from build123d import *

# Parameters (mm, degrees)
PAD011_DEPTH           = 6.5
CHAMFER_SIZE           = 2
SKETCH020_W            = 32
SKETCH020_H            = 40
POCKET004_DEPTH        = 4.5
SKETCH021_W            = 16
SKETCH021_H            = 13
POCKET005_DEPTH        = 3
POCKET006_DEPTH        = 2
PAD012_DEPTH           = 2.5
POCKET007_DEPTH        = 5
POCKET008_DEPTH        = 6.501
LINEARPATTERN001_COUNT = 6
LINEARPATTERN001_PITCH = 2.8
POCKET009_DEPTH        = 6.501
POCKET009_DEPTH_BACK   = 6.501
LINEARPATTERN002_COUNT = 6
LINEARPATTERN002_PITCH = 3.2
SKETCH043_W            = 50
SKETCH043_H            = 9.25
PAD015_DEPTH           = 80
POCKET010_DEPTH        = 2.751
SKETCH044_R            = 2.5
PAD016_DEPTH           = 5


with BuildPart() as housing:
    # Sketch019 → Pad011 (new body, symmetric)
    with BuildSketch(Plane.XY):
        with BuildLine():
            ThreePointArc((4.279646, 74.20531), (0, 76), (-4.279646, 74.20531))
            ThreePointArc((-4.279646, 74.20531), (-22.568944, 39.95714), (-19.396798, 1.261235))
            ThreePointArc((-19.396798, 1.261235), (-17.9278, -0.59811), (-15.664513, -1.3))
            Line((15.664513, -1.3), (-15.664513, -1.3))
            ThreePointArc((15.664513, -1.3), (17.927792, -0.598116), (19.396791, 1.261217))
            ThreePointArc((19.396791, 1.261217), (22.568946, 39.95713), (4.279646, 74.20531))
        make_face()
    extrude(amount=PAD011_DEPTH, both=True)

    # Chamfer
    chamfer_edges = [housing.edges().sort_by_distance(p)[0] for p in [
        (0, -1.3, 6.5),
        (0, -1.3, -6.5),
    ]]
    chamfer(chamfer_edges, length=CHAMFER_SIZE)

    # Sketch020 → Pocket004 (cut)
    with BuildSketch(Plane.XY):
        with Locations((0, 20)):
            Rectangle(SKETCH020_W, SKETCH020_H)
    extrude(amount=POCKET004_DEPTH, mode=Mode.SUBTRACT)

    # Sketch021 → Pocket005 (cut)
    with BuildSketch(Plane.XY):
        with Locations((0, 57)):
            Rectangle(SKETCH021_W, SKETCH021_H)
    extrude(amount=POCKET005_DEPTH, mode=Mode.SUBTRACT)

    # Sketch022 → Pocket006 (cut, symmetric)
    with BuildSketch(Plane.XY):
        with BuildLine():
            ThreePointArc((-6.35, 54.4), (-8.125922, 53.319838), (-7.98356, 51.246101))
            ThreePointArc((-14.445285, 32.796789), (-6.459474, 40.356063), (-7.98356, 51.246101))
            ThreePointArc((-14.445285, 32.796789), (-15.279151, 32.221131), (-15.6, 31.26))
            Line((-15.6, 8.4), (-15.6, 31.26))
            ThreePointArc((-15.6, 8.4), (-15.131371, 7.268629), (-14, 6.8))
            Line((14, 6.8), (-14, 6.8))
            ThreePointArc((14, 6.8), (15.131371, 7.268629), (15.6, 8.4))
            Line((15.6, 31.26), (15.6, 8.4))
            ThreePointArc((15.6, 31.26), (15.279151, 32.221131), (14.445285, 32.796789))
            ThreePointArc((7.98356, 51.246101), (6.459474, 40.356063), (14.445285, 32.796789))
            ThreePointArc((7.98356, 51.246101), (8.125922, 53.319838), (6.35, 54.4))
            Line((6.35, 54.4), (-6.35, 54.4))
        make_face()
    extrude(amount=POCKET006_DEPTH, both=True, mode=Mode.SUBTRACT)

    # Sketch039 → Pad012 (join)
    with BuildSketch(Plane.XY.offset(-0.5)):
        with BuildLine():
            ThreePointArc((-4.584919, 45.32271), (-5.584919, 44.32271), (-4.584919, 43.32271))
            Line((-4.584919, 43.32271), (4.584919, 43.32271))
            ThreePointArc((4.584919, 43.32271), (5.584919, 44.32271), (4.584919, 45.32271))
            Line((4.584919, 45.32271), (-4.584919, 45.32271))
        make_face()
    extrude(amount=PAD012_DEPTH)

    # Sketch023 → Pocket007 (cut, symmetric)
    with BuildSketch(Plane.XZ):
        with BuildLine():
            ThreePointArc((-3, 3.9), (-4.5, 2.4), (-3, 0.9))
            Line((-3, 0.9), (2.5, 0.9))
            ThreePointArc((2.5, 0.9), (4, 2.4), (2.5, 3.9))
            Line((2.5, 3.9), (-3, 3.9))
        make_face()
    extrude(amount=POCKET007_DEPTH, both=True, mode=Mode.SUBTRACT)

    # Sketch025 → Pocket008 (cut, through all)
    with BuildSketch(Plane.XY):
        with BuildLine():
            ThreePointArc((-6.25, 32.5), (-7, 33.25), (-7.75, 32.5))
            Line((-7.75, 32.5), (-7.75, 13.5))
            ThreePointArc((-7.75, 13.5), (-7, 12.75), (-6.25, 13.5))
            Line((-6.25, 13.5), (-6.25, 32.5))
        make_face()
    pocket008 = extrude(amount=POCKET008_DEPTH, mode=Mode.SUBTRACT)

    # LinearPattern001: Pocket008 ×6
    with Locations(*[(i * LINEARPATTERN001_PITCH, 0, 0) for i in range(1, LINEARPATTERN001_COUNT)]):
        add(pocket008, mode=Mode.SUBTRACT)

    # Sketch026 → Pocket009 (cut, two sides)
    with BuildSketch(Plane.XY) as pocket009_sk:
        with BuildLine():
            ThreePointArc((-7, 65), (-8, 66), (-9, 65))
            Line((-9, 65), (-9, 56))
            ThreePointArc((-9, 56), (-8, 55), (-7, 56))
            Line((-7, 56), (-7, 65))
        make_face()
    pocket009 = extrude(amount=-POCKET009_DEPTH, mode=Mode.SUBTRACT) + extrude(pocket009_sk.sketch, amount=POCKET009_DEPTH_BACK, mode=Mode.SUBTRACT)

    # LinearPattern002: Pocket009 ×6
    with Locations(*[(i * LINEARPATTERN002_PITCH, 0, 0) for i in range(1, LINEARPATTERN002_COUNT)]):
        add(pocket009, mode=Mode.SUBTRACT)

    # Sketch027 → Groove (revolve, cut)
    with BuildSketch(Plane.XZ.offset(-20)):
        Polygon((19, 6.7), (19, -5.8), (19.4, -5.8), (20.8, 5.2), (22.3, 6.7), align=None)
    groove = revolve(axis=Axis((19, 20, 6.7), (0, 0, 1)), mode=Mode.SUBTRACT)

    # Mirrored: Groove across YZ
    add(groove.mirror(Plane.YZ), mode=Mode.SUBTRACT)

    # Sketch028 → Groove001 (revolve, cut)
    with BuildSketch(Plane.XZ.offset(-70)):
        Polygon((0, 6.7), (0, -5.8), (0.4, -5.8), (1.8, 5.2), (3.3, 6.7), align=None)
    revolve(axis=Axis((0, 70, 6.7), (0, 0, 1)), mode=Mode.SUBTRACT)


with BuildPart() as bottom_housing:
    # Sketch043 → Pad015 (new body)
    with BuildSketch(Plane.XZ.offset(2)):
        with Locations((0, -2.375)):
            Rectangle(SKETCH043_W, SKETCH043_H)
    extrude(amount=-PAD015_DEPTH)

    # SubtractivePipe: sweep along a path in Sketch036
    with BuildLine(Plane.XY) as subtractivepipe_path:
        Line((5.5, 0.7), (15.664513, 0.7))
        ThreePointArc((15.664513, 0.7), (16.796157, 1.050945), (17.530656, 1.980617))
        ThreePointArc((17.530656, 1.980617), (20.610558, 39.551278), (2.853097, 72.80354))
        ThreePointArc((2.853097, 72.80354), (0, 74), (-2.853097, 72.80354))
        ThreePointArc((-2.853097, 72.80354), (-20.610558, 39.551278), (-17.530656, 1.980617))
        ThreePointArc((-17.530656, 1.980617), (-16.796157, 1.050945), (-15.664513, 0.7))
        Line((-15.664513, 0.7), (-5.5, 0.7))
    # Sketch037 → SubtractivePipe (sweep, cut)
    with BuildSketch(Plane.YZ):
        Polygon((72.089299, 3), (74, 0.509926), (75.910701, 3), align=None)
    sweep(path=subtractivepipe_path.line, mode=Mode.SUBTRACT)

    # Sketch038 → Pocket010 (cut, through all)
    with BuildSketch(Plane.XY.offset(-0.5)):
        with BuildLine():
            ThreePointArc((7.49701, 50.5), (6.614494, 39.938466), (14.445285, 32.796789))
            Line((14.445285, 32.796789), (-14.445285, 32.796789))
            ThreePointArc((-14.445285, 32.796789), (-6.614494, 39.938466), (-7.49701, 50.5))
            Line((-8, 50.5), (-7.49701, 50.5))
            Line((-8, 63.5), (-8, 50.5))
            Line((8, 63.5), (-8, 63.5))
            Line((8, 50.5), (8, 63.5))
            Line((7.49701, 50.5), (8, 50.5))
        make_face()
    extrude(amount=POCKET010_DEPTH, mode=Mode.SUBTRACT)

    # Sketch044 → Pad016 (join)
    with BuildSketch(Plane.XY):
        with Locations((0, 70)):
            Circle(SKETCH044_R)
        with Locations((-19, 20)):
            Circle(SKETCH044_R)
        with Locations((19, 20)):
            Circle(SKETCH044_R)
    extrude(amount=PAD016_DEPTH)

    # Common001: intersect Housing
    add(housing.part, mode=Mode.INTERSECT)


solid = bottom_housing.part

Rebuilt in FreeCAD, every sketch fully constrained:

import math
import FreeCAD as App
import Part
import Sketcher
from FreeCAD import Vector
Q = App.Units.Quantity


def edges_at(feature, points):
    """Names of the edges that pass closest to the given points."""
    edges = feature.Shape.Edges
    near = lambda p: min(range(len(edges)), key=lambda i: edges[i].distToShape(Part.Vertex(*p))[0])
    return sorted({f"Edge{near(p) + 1}" for p in points})

doc = App.newDocument("Part")
body = doc.addObject("PartDesign::Body", "Body")

sketch1 = body.newObject("Sketcher::SketchObject", "Sketch")
sketch1.AttachmentSupport = (doc.getObject("XY_Plane"), [""])
sketch1.MapMode = "FlatFace"
sketch1.addGeometry(Part.ArcOfCircle(Part.Circle(Vector(0, 70, 0), Vector(0, 0, 1), 6), math.radians(44), math.radians(136)), False)
sketch1.addGeometry(Part.ArcOfCircle(Part.Circle(Vector(44.8, 26, 0), Vector(0, 0, 1), 68.8), math.radians(136), math.radians(201)), False)
sketch1.addGeometry(Part.ArcOfCircle(Part.Circle(Vector(-15.7, 2.7, 0), Vector(0, 0, 1), 4), math.radians(-159), math.radians(-90)), False)
sketch1.addGeometry(Part.LineSegment(Vector(-15.7, -1.3, 0), Vector(15.7, -1.3, 0)), False)
sketch1.addGeometry(Part.ArcOfCircle(Part.Circle(Vector(15.7, 2.7, 0), Vector(0, 0, 1), 4), math.radians(-90), math.radians(-21)), False)
sketch1.addGeometry(Part.ArcOfCircle(Part.Circle(Vector(-44.8, 26, 0), Vector(0, 0, 1), 68.8), math.radians(-21), math.radians(44)), False)
sketch1.addConstraint(Sketcher.Constraint("Tangent", 0, 2, 1, 1))
sketch1.addConstraint(Sketcher.Constraint("Tangent", 1, 2, 2, 1))
sketch1.addConstraint(Sketcher.Constraint("Tangent", 2, 2, 3, 1))
sketch1.addConstraint(Sketcher.Constraint("Tangent", 3, 2, 4, 1))
sketch1.addConstraint(Sketcher.Constraint("Coincident", 4, 2, 5, 1))
sketch1.addConstraint(Sketcher.Constraint("Tangent", 5, 2, 0, 1))
sketch1.addConstraint(Sketcher.Constraint("Horizontal", 3))
sketch1.addConstraint(Sketcher.Constraint("Equal", 1, 5))
sketch1.addConstraint(Sketcher.Constraint("Symmetric", 2, 3, 4, 3, -2))
sketch1.addConstraint(Sketcher.Constraint("PointOnObject", 0, 3, -2))
sketch1.addConstraint(Sketcher.Constraint("Radius", 0, 6.000001))
sketch1.addConstraint(Sketcher.Constraint("Radius", 2, 4.0))
sketch1.addConstraint(Sketcher.Constraint("DistanceY", -1, 1, 0, 3, 69.999999))
sketch1.addConstraint(Sketcher.Constraint("DistanceY", -1, 1, 1, 3, 26.0))
sketch1.addConstraint(Sketcher.Constraint("DistanceY", -1, 1, 2, 3, 2.7))
sketch1.addConstraint(Sketcher.Constraint("Radius", 1, 68.777778))
sketch1.addConstraint(Sketcher.Constraint("DistanceX", -1, 1, 4, 2, 19.396791))
pad1 = body.newObject("PartDesign::Pad", "Pad")
pad1.Profile = sketch1
pad1.Length = 13
pad1.Midplane = True
doc.recompute()

chamfer = body.newObject("PartDesign::Chamfer", "Chamfer")
chamfer.Base = (pad1, edges_at(pad1, [(0, -1.3, 6.5), (0, -1.3, -6.5)]))
chamfer.Size = 2

sketch2 = body.newObject("Sketcher::SketchObject", "Sketch001")
sketch2.AttachmentSupport = (doc.getObject("XY_Plane"), [""])
sketch2.MapMode = "FlatFace"
sketch2.addGeometry(Part.LineSegment(Vector(-16, 40, 0), Vector(-16, 0, 0)), False)
sketch2.addGeometry(Part.LineSegment(Vector(-16, 0, 0), Vector(16, 0, 0)), False)
sketch2.addGeometry(Part.LineSegment(Vector(16, 0, 0), Vector(16, 40, 0)), False)
sketch2.addGeometry(Part.LineSegment(Vector(16, 40, 0), Vector(-16, 40, 0)), False)
sketch2.addConstraint(Sketcher.Constraint("Coincident", 0, 2, 1, 1))
sketch2.addConstraint(Sketcher.Constraint("Coincident", 1, 2, 2, 1))
sketch2.addConstraint(Sketcher.Constraint("Coincident", 2, 2, 3, 1))
sketch2.addConstraint(Sketcher.Constraint("Coincident", 3, 2, 0, 1))
sketch2.addConstraint(Sketcher.Constraint("Vertical", 0))
sketch2.addConstraint(Sketcher.Constraint("Horizontal", 1))
sketch2.addConstraint(Sketcher.Constraint("Vertical", 2))
sketch2.addConstraint(Sketcher.Constraint("Horizontal", 3))
sketch2.addConstraint(Sketcher.Constraint("Symmetric", 0, 2, 1, 2, -1, 1))
sketch2.addConstraint(Sketcher.Constraint("DistanceX", 1, 1, 1, 2, 32.0))
sketch2.addConstraint(Sketcher.Constraint("DistanceY", 0, 2, 0, 1, 40.0))
pocket1 = body.newObject("PartDesign::Pocket", "Pocket")
pocket1.Profile = sketch2
pocket1.Length = 4.5
pocket1.Reversed = True

sketch3 = body.newObject("Sketcher::SketchObject", "Sketch002")
sketch3.AttachmentSupport = (doc.getObject("XY_Plane"), [""])
sketch3.MapMode = "FlatFace"
sketch3.addGeometry(Part.LineSegment(Vector(-8, 64, 0), Vector(-8, 50, 0)), False)
sketch3.addGeometry(Part.LineSegment(Vector(-8, 50, 0), Vector(8, 50, 0)), False)
sketch3.addGeometry(Part.LineSegment(Vector(8, 50, 0), Vector(8, 64, 0)), False)
sketch3.addGeometry(Part.LineSegment(Vector(8, 64, 0), Vector(-8, 64, 0)), False)
sketch3.addConstraint(Sketcher.Constraint("Coincident", 0, 2, 1, 1))
sketch3.addConstraint(Sketcher.Constraint("Coincident", 1, 2, 2, 1))
sketch3.addConstraint(Sketcher.Constraint("Coincident", 2, 2, 3, 1))
sketch3.addConstraint(Sketcher.Constraint("Coincident", 3, 2, 0, 1))
sketch3.addConstraint(Sketcher.Constraint("Vertical", 0))
sketch3.addConstraint(Sketcher.Constraint("Horizontal", 1))
sketch3.addConstraint(Sketcher.Constraint("Vertical", 2))
sketch3.addConstraint(Sketcher.Constraint("Horizontal", 3))
sketch3.addConstraint(Sketcher.Constraint("DistanceX", 1, 1, 1, 2, 16.0))
sketch3.addConstraint(Sketcher.Constraint("DistanceY", 0, 2, 0, 1, 13.0))
sketch3.addConstraint(Sketcher.Constraint("DistanceX", 0, 2, -1, 1, 8.0))
sketch3.addConstraint(Sketcher.Constraint("DistanceY", -1, 1, 0, 2, 50.5))
pocket2 = body.newObject("PartDesign::Pocket", "Pocket001")
pocket2.Profile = sketch3
pocket2.Length = 3
pocket2.Reversed = True

sketch4 = body.newObject("Sketcher::SketchObject", "Sketch003")
sketch4.AttachmentSupport = (doc.getObject("XY_Plane"), [""])
sketch4.MapMode = "FlatFace"
sketch4.addGeometry(Part.ArcOfCircle(Part.Circle(Vector(-6.4, 52.4, 0), Vector(0, 0, 1), 2), math.radians(90), math.radians(215)), False)
sketch4.addGeometry(Part.ArcOfCircle(Part.Circle(Vector(-17.8, 44.3, 0), Vector(0, 0, 1), 12), math.radians(-74), math.radians(35)), False)
sketch4.addGeometry(Part.ArcOfCircle(Part.Circle(Vector(-14, 31.3, 0), Vector(0, 0, 1), 1.6), math.radians(106), math.radians(180)), False)
sketch4.addGeometry(Part.LineSegment(Vector(-15.6, 31.3, 0), Vector(-15.6, 8.4, 0)), False)
sketch4.addGeometry(Part.ArcOfCircle(Part.Circle(Vector(-14, 8.4, 0), Vector(0, 0, 1), 1.6), math.radians(180), math.radians(270)), False)
sketch4.addGeometry(Part.LineSegment(Vector(-14, 6.8, 0), Vector(14, 6.8, 0)), False)
sketch4.addGeometry(Part.ArcOfCircle(Part.Circle(Vector(14, 8.4, 0), Vector(0, 0, 1), 1.6), math.radians(-90), math.radians(0)), False)
sketch4.addGeometry(Part.LineSegment(Vector(15.6, 8.4, 0), Vector(15.6, 31.3, 0)), False)
sketch4.addGeometry(Part.ArcOfCircle(Part.Circle(Vector(14, 31.3, 0), Vector(0, 0, 1), 1.6), math.radians(0), math.radians(74)), False)
sketch4.addGeometry(Part.ArcOfCircle(Part.Circle(Vector(17.8, 44.3, 0), Vector(0, 0, 1), 12), math.radians(145), math.radians(254)), False)
sketch4.addGeometry(Part.ArcOfCircle(Part.Circle(Vector(6.4, 52.4, 0), Vector(0, 0, 1), 2), math.radians(-35), math.radians(90)), False)
sketch4.addGeometry(Part.LineSegment(Vector(6.3, 54.4, 0), Vector(-6.3, 54.4, 0)), False)
sketch4.addConstraint(Sketcher.Constraint("Tangent", 0, 2, 1, 2))
sketch4.addConstraint(Sketcher.Constraint("Tangent", 1, 1, 2, 1))
sketch4.addConstraint(Sketcher.Constraint("Tangent", 2, 2, 3, 1))
sketch4.addConstraint(Sketcher.Constraint("Tangent", 3, 2, 4, 1))
sketch4.addConstraint(Sketcher.Constraint("Tangent", 4, 2, 5, 1))
sketch4.addConstraint(Sketcher.Constraint("Tangent", 5, 2, 6, 1))
sketch4.addConstraint(Sketcher.Constraint("Tangent", 6, 2, 7, 1))
sketch4.addConstraint(Sketcher.Constraint("Tangent", 7, 2, 8, 1))
sketch4.addConstraint(Sketcher.Constraint("Tangent", 8, 2, 9, 2))
sketch4.addConstraint(Sketcher.Constraint("Tangent", 9, 1, 10, 1))
sketch4.addConstraint(Sketcher.Constraint("Tangent", 10, 2, 11, 1))
sketch4.addConstraint(Sketcher.Constraint("Tangent", 11, 2, 0, 1))
sketch4.addConstraint(Sketcher.Constraint("Vertical", 3))
sketch4.addConstraint(Sketcher.Constraint("Horizontal", 5))
sketch4.addConstraint(Sketcher.Constraint("Vertical", 7))
sketch4.addConstraint(Sketcher.Constraint("Horizontal", 11))
sketch4.addConstraint(Sketcher.Constraint("Equal", 2, 4))
sketch4.addConstraint(Sketcher.Constraint("Equal", 4, 6))
sketch4.addConstraint(Sketcher.Constraint("Equal", 6, 8))
sketch4.addConstraint(Sketcher.Constraint("Equal", 1, 9))
sketch4.addConstraint(Sketcher.Constraint("Equal", 0, 10))
sketch4.addConstraint(Sketcher.Constraint("Symmetric", 2, 3, 8, 3, -2))
sketch4.addConstraint(Sketcher.Constraint("Horizontal", 1, 3, 9, 3))
sketch4.addConstraint(Sketcher.Constraint("Radius", 0, 2.0))
sketch4.addConstraint(Sketcher.Constraint("Radius", 1, 12.0))
sketch4.addConstraint(Sketcher.Constraint("Radius", 2, 1.599999))
sketch4.addConstraint(Sketcher.Constraint("DistanceX", 5, 1, 5, 2, 28.0))
sketch4.addConstraint(Sketcher.Constraint("DistanceX", 11, 2, 11, 1, 12.7))
sketch4.addConstraint(Sketcher.Constraint("DistanceY", 4, 3, 0, 3, 44.0))
sketch4.addConstraint(Sketcher.Constraint("DistanceY", 3, 2, 3, 1, 22.86))
sketch4.addConstraint(Sketcher.Constraint("DistanceY", -1, 1, 0, 3, 52.4))
pocket3 = body.newObject("PartDesign::Pocket", "Pocket002")
pocket3.Profile = sketch4
pocket3.Length = 4
pocket3.Midplane = True

sketch5 = body.newObject("Sketcher::SketchObject", "Sketch004")
sketch5.AttachmentSupport = (doc.getObject("XY_Plane"), [""])
sketch5.MapMode = "FlatFace"
sketch5.AttachmentOffset = App.Placement(Vector(0, 0, -0.5), App.Rotation())
sketch5.addGeometry(Part.ArcOfCircle(Part.Circle(Vector(-4.6, 44.3, 0), Vector(0, 0, 1), 1), math.radians(90), math.radians(270)), False)
sketch5.addGeometry(Part.LineSegment(Vector(-4.6, 43.3, 0), Vector(4.6, 43.3, 0)), False)
sketch5.addGeometry(Part.ArcOfCircle(Part.Circle(Vector(4.6, 44.3, 0), Vector(0, 0, 1), 1), math.radians(-90), math.radians(90)), False)
sketch5.addGeometry(Part.LineSegment(Vector(4.6, 45.3, 0), Vector(-4.6, 45.3, 0)), False)
sketch5.addConstraint(Sketcher.Constraint("Tangent", 0, 2, 1, 1))
sketch5.addConstraint(Sketcher.Constraint("Tangent", 1, 2, 2, 1))
sketch5.addConstraint(Sketcher.Constraint("Tangent", 2, 2, 3, 1))
sketch5.addConstraint(Sketcher.Constraint("Tangent", 3, 2, 0, 1))
sketch5.addConstraint(Sketcher.Constraint("Horizontal", 1))
sketch5.addConstraint(Sketcher.Constraint("Horizontal", 3))
sketch5.addConstraint(Sketcher.Constraint("Radius", 0, 1.0))
sketch5.addConstraint(Sketcher.Constraint("DistanceX", 1, 1, 1, 2, 9.169838))
sketch5.addConstraint(Sketcher.Constraint("DistanceX", 0, 3, -1, 1, 4.584919))
sketch5.addConstraint(Sketcher.Constraint("DistanceY", -1, 1, 0, 3, 44.32271))
pad2 = body.newObject("PartDesign::Pad", "Pad001")
pad2.Profile = sketch5
pad2.Length = 2.5

sketch6 = body.newObject("Sketcher::SketchObject", "Sketch005")
sketch6.AttachmentSupport = (doc.getObject("XZ_Plane"), [""])
sketch6.MapMode = "FlatFace"
sketch6.addGeometry(Part.ArcOfCircle(Part.Circle(Vector(-3, 2.4, 0), Vector(0, 0, 1), 1.5), math.radians(90), math.radians(270)), False)
sketch6.addGeometry(Part.LineSegment(Vector(-3, 0.9, 0), Vector(2.5, 0.9, 0)), False)
sketch6.addGeometry(Part.ArcOfCircle(Part.Circle(Vector(2.5, 2.4, 0), Vector(0, 0, 1), 1.5), math.radians(-90), math.radians(90)), False)
sketch6.addGeometry(Part.LineSegment(Vector(2.5, 3.9, 0), Vector(-3, 3.9, 0)), False)
sketch6.addConstraint(Sketcher.Constraint("Tangent", 0, 2, 1, 1))
sketch6.addConstraint(Sketcher.Constraint("Tangent", 1, 2, 2, 1))
sketch6.addConstraint(Sketcher.Constraint("Tangent", 2, 2, 3, 1))
sketch6.addConstraint(Sketcher.Constraint("Tangent", 3, 2, 0, 1))
sketch6.addConstraint(Sketcher.Constraint("Horizontal", 1))
sketch6.addConstraint(Sketcher.Constraint("Horizontal", 3))
sketch6.addConstraint(Sketcher.Constraint("Radius", 0, 1.5))
sketch6.addConstraint(Sketcher.Constraint("DistanceX", 1, 1, 1, 2, 5.5))
sketch6.addConstraint(Sketcher.Constraint("DistanceX", 0, 3, -1, 1, 3.0))
sketch6.addConstraint(Sketcher.Constraint("DistanceY", -1, 1, 0, 3, 2.4))
pocket4 = body.newObject("PartDesign::Pocket", "Pocket003")
pocket4.Profile = sketch6
pocket4.Length = 10
pocket4.Midplane = True

sketch7 = body.newObject("Sketcher::SketchObject", "Sketch006")
sketch7.AttachmentSupport = (doc.getObject("XY_Plane"), [""])
sketch7.MapMode = "FlatFace"
sketch7.addGeometry(Part.ArcOfCircle(Part.Circle(Vector(-7, 32.5, 0), Vector(0, 0, 1), 0.8), math.radians(0), math.radians(180)), False)
sketch7.addGeometry(Part.LineSegment(Vector(-7.8, 32.5, 0), Vector(-7.8, 13.5, 0)), False)
sketch7.addGeometry(Part.ArcOfCircle(Part.Circle(Vector(-7, 13.5, 0), Vector(0, 0, 1), 0.8), math.radians(180), math.radians(360)), False)
sketch7.addGeometry(Part.LineSegment(Vector(-6.2, 13.5, 0), Vector(-6.2, 32.5, 0)), False)
sketch7.addConstraint(Sketcher.Constraint("Tangent", 0, 2, 1, 1))
sketch7.addConstraint(Sketcher.Constraint("Tangent", 1, 2, 2, 1))
sketch7.addConstraint(Sketcher.Constraint("Tangent", 2, 2, 3, 1))
sketch7.addConstraint(Sketcher.Constraint("Tangent", 3, 2, 0, 1))
sketch7.addConstraint(Sketcher.Constraint("Vertical", 1))
sketch7.addConstraint(Sketcher.Constraint("Vertical", 3))
sketch7.addConstraint(Sketcher.Constraint("DistanceY", 1, 2, 1, 1, 19.0))
sketch7.addConstraint(Sketcher.Constraint("Radius", 0, 0.75))
sketch7.addConstraint(Sketcher.Constraint("DistanceX", 0, 3, -1, 1, 7.0))
sketch7.addConstraint(Sketcher.Constraint("DistanceY", -1, 1, 0, 3, 32.5))
pocket5 = body.newObject("PartDesign::Pocket", "Pocket004")
pocket5.Profile = sketch7
pocket5.Type = "ThroughAll"
pocket5.Reversed = True
doc.recompute()

linearpattern = body.newObject("PartDesign::LinearPattern", "LinearPattern")
linearpattern.Originals = [pocket5]
linearpattern.Direction = (doc.getObject("X_Axis"), [""])
linearpattern.Mode = "offset"
linearpattern.Offset = 2.8
linearpattern.Occurrences = 6
body.Tip = linearpattern

sketch8 = body.newObject("Sketcher::SketchObject", "Sketch007")
sketch8.AttachmentSupport = (doc.getObject("XY_Plane"), [""])
sketch8.MapMode = "FlatFace"
sketch8.addGeometry(Part.ArcOfCircle(Part.Circle(Vector(-8, 65, 0), Vector(0, 0, 1), 1), math.radians(0), math.radians(180)), False)
sketch8.addGeometry(Part.LineSegment(Vector(-9, 65, 0), Vector(-9, 56, 0)), False)
sketch8.addGeometry(Part.ArcOfCircle(Part.Circle(Vector(-8, 56, 0), Vector(0, 0, 1), 1), math.radians(180), math.radians(360)), False)
sketch8.addGeometry(Part.LineSegment(Vector(-7, 56, 0), Vector(-7, 65, 0)), False)
sketch8.addConstraint(Sketcher.Constraint("Tangent", 0, 2, 1, 1))
sketch8.addConstraint(Sketcher.Constraint("Tangent", 1, 2, 2, 1))
sketch8.addConstraint(Sketcher.Constraint("Tangent", 2, 2, 3, 1))
sketch8.addConstraint(Sketcher.Constraint("Tangent", 3, 2, 0, 1))
sketch8.addConstraint(Sketcher.Constraint("Vertical", 1))
sketch8.addConstraint(Sketcher.Constraint("Vertical", 3))
sketch8.addConstraint(Sketcher.Constraint("Radius", 0, 1.0))
sketch8.addConstraint(Sketcher.Constraint("DistanceY", 1, 2, 1, 1, 9.0))
sketch8.addConstraint(Sketcher.Constraint("DistanceX", 0, 3, -1, 1, 8.0))
sketch8.addConstraint(Sketcher.Constraint("DistanceY", -1, 1, 0, 3, 65.0))
pocket6 = body.newObject("PartDesign::Pocket", "Pocket005")
pocket6.Profile = sketch8
pocket6.Type = "ThroughAll"
pocket6.Midplane = True
doc.recompute()

linearpattern2 = body.newObject("PartDesign::LinearPattern", "LinearPattern001")
linearpattern2.Originals = [pocket6]
linearpattern2.Direction = (doc.getObject("X_Axis"), [""])
linearpattern2.Mode = "offset"
linearpattern2.Offset = 3.2
linearpattern2.Occurrences = 6
body.Tip = linearpattern2

sketch9 = body.newObject("Sketcher::SketchObject", "Sketch008")
sketch9.AttachmentSupport = (doc.getObject("XZ_Plane"), [""])
sketch9.MapMode = "FlatFace"
sketch9.AttachmentOffset = App.Placement(Vector(0, 0, -20), App.Rotation())
sketch9.addGeometry(Part.LineSegment(Vector(19, 6.7, 0), Vector(19, -5.8, 0)), False)
sketch9.addGeometry(Part.LineSegment(Vector(19, -5.8, 0), Vector(19.4, -5.8, 0)), False)
sketch9.addGeometry(Part.LineSegment(Vector(19.4, -5.8, 0), Vector(20.8, 5.2, 0)), False)
sketch9.addGeometry(Part.LineSegment(Vector(20.8, 5.2, 0), Vector(22.3, 6.7, 0)), False)
sketch9.addGeometry(Part.LineSegment(Vector(22.3, 6.7, 0), Vector(19, 6.7, 0)), False)
sketch9.addGeometry(Part.LineSegment(Vector(19, -5.8, 0), Vector(19, 6.7, 0)), True)
sketch9.addConstraint(Sketcher.Constraint("Coincident", 0, 2, 1, 1))
sketch9.addConstraint(Sketcher.Constraint("Coincident", 1, 2, 2, 1))
sketch9.addConstraint(Sketcher.Constraint("Coincident", 2, 2, 3, 1))
sketch9.addConstraint(Sketcher.Constraint("Coincident", 3, 2, 4, 1))
sketch9.addConstraint(Sketcher.Constraint("Coincident", 4, 2, 0, 1))
sketch9.addConstraint(Sketcher.Constraint("Vertical", 0))
sketch9.addConstraint(Sketcher.Constraint("Horizontal", 1))
sketch9.addConstraint(Sketcher.Constraint("Horizontal", 4))
sketch9.addConstraint(Sketcher.Constraint("Vertical", 5))
sketch9.addConstraint(Sketcher.Constraint("Coincident", 5, 1, 0, 2))
sketch9.addConstraint(Sketcher.Constraint("Horizontal", 3, 2, 5, 2))
sketch9.addConstraint(Sketcher.Constraint("Angle", 3, Q("45 deg")))
sketch9.addConstraint(Sketcher.Constraint("DistanceX", 1, 1, 1, 2, 0.4))
sketch9.addConstraint(Sketcher.Constraint("DistanceX", 4, 2, 4, 1, 3.3))
sketch9.addConstraint(Sketcher.Constraint("DistanceY", 0, 2, 0, 1, 12.5))
sketch9.addConstraint(Sketcher.Constraint("DistanceX", -1, 1, 0, 2, 19.0))
sketch9.addConstraint(Sketcher.Constraint("DistanceY", 1, 2, 2, 2, 11.0))
sketch9.addConstraint(Sketcher.Constraint("DistanceY", 0, 2, -1, 1, 5.8))
groove = body.newObject("PartDesign::Groove", "Groove")
groove.Profile = sketch9
groove.ReferenceAxis = (sketch9, ["Axis0"])
groove.Angle = 360
doc.recompute()

mirrored = body.newObject("PartDesign::Mirrored", "Mirrored")
mirrored.Originals = [groove]
mirrored.MirrorPlane = (doc.getObject("YZ_Plane"), [""])
body.Tip = mirrored

sketch10 = body.newObject("Sketcher::SketchObject", "Sketch009")
sketch10.AttachmentSupport = (doc.getObject("XZ_Plane"), [""])
sketch10.MapMode = "FlatFace"
sketch10.AttachmentOffset = App.Placement(Vector(0, 0, -70), App.Rotation())
sketch10.addGeometry(Part.LineSegment(Vector(0, 6.7, 0), Vector(0, -5.8, 0)), False)
sketch10.addGeometry(Part.LineSegment(Vector(0, -5.8, 0), Vector(0.4, -5.8, 0)), False)
sketch10.addGeometry(Part.LineSegment(Vector(0.4, -5.8, 0), Vector(1.8, 5.2, 0)), False)
sketch10.addGeometry(Part.LineSegment(Vector(1.8, 5.2, 0), Vector(3.3, 6.7, 0)), False)
sketch10.addGeometry(Part.LineSegment(Vector(3.3, 6.7, 0), Vector(0, 6.7, 0)), False)
sketch10.addConstraint(Sketcher.Constraint("Coincident", 0, 2, 1, 1))
sketch10.addConstraint(Sketcher.Constraint("Coincident", 1, 2, 2, 1))
sketch10.addConstraint(Sketcher.Constraint("Coincident", 2, 2, 3, 1))
sketch10.addConstraint(Sketcher.Constraint("Coincident", 3, 2, 4, 1))
sketch10.addConstraint(Sketcher.Constraint("Coincident", 4, 2, 0, 1))
sketch10.addConstraint(Sketcher.Constraint("Vertical", 0))
sketch10.addConstraint(Sketcher.Constraint("Horizontal", 1))
sketch10.addConstraint(Sketcher.Constraint("Horizontal", 4))
sketch10.addConstraint(Sketcher.Constraint("PointOnObject", 0, 2, -2))
sketch10.addConstraint(Sketcher.Constraint("Angle", 3, Q("45 deg")))
sketch10.addConstraint(Sketcher.Constraint("DistanceX", 1, 1, 1, 2, 0.4))
sketch10.addConstraint(Sketcher.Constraint("DistanceX", 4, 2, 4, 1, 3.3))
sketch10.addConstraint(Sketcher.Constraint("DistanceY", 0, 2, 0, 1, 12.5))
sketch10.addConstraint(Sketcher.Constraint("DistanceY", 1, 2, 2, 2, 11.0))
sketch10.addConstraint(Sketcher.Constraint("DistanceY", 0, 2, -1, 1, 5.8))
groove2 = body.newObject("PartDesign::Groove", "Groove001")
groove2.Profile = sketch10
groove2.ReferenceAxis = (sketch10, ["V_Axis"])
groove2.Angle = 360
body2 = doc.addObject("PartDesign::Body", "Body001")

sketch11 = body2.newObject("Sketcher::SketchObject", "Sketch010")
sketch11.AttachmentSupport = (doc.getObject("XZ_Plane001"), [""])
sketch11.MapMode = "FlatFace"
sketch11.AttachmentOffset = App.Placement(Vector(0, 0, 2), App.Rotation())
sketch11.addGeometry(Part.LineSegment(Vector(-25, 2, 0), Vector(-25, -7, 0)), False)
sketch11.addGeometry(Part.LineSegment(Vector(-25, -7, 0), Vector(25, -7, 0)), False)
sketch11.addGeometry(Part.LineSegment(Vector(25, -7, 0), Vector(25, 2, 0)), False)
sketch11.addGeometry(Part.LineSegment(Vector(25, 2, 0), Vector(-25, 2, 0)), False)
sketch11.addConstraint(Sketcher.Constraint("Coincident", 0, 2, 1, 1))
sketch11.addConstraint(Sketcher.Constraint("Coincident", 1, 2, 2, 1))
sketch11.addConstraint(Sketcher.Constraint("Coincident", 2, 2, 3, 1))
sketch11.addConstraint(Sketcher.Constraint("Coincident", 3, 2, 0, 1))
sketch11.addConstraint(Sketcher.Constraint("Vertical", 0))
sketch11.addConstraint(Sketcher.Constraint("Horizontal", 1))
sketch11.addConstraint(Sketcher.Constraint("Vertical", 2))
sketch11.addConstraint(Sketcher.Constraint("Horizontal", 3))
sketch11.addConstraint(Sketcher.Constraint("DistanceX", 1, 1, 1, 2, 50.0))
sketch11.addConstraint(Sketcher.Constraint("DistanceX", 0, 2, -1, 1, 25.0))
sketch11.addConstraint(Sketcher.Constraint("DistanceY", 0, 2, -1, 1, 7.0))
sketch11.addConstraint(Sketcher.Constraint("DistanceY", 0, 2, 0, 1, 9.25))
pad3 = body2.newObject("PartDesign::Pad", "Pad002")
pad3.Profile = sketch11
pad3.Length = 80
pad3.Reversed = True

sketch12 = body2.newObject("Sketcher::SketchObject", "Sketch011")
sketch12.AttachmentSupport = (doc.getObject("YZ_Plane001"), [""])
sketch12.MapMode = "FlatFace"
sketch12.addGeometry(Part.LineSegment(Vector(72.1, 3, 0), Vector(74, 0.5, 0)), False)
sketch12.addGeometry(Part.LineSegment(Vector(74, 0.5, 0), Vector(75.9, 3, 0)), False)
sketch12.addGeometry(Part.LineSegment(Vector(75.9, 3, 0), Vector(72.1, 3, 0)), False)
sketch12.addConstraint(Sketcher.Constraint("Coincident", 0, 2, 1, 1))
sketch12.addConstraint(Sketcher.Constraint("Coincident", 1, 2, 2, 1))
sketch12.addConstraint(Sketcher.Constraint("Coincident", 2, 2, 0, 1))
sketch12.addConstraint(Sketcher.Constraint("Horizontal", 2))
sketch12.addConstraint(Sketcher.Constraint("Equal", 0, 1))
sketch12.addConstraint(Sketcher.Constraint("DistanceX", -1, 1, 0, 2, 74.0))
sketch12.addConstraint(Sketcher.Constraint("DistanceY", -1, 1, 1, 2, 3.0))
sketch12.addConstraint(Sketcher.Constraint("Angle", 0, Q("-52.5 deg")))
sketch12.addConstraint(Sketcher.Constraint("DistanceX", -1, 1, 1, 2, 75.910701))

sketch13 = body2.newObject("Sketcher::SketchObject", "Sketch012")
sketch13.AttachmentSupport = (doc.getObject("XY_Plane001"), [""])
sketch13.MapMode = "FlatFace"
sketch13.addGeometry(Part.LineSegment(Vector(5.5, 0.7, 0), Vector(15.7, 0.7, 0)), False)
sketch13.addGeometry(Part.ArcOfCircle(Part.Circle(Vector(15.7, 2.7, 0), Vector(0, 0, 1), 2), math.radians(-90), math.radians(-21)), False)
sketch13.addGeometry(Part.ArcOfCircle(Part.Circle(Vector(-44.8, 26, 0), Vector(0, 0, 1), 66.8), math.radians(-21), math.radians(44)), False)
sketch13.addGeometry(Part.ArcOfCircle(Part.Circle(Vector(0, 70, 0), Vector(0, 0, 1), 4), math.radians(44), math.radians(136)), False)
sketch13.addGeometry(Part.ArcOfCircle(Part.Circle(Vector(44.8, 26, 0), Vector(0, 0, 1), 66.8), math.radians(136), math.radians(201)), False)
sketch13.addGeometry(Part.ArcOfCircle(Part.Circle(Vector(-15.7, 2.7, 0), Vector(0, 0, 1), 2), math.radians(-159), math.radians(-90)), False)
sketch13.addGeometry(Part.LineSegment(Vector(-15.7, 0.7, 0), Vector(-5.5, 0.7, 0)), False)
sketch13.addConstraint(Sketcher.Constraint("Tangent", 0, 2, 1, 1))
sketch13.addConstraint(Sketcher.Constraint("Tangent", 1, 2, 2, 1))
sketch13.addConstraint(Sketcher.Constraint("Tangent", 2, 2, 3, 1))
sketch13.addConstraint(Sketcher.Constraint("Tangent", 3, 2, 4, 1))
sketch13.addConstraint(Sketcher.Constraint("Tangent", 4, 2, 5, 1))
sketch13.addConstraint(Sketcher.Constraint("Tangent", 5, 2, 6, 1))
sketch13.addConstraint(Sketcher.Constraint("Horizontal", 0))
sketch13.addConstraint(Sketcher.Constraint("Horizontal", 6))
sketch13.addConstraint(Sketcher.Constraint("Equal", 2, 4))
sketch13.addConstraint(Sketcher.Constraint("Equal", 1, 5))
sketch13.addConstraint(Sketcher.Constraint("Symmetric", 2, 3, 4, 3, -2))
sketch13.addConstraint(Sketcher.Constraint("Symmetric", 0, 1, 6, 2, -2))
sketch13.addConstraint(Sketcher.Constraint("Radius", 1, 2.000001))
sketch13.addConstraint(Sketcher.Constraint("Radius", 3, 4.0))
sketch13.addConstraint(Sketcher.Constraint("DistanceY", -1, 1, 2, 3, 25.999999))
sketch13.addConstraint(Sketcher.Constraint("DistanceY", -1, 1, 3, 3, 70.0))
sketch13.addConstraint(Sketcher.Constraint("DistanceX", 6, 2, 0, 1, 11.0))
sketch13.addConstraint(Sketcher.Constraint("DistanceY", -1, 1, 1, 3, 2.700001))
sketch13.addConstraint(Sketcher.Constraint("Radius", 2, 66.77778))
doc.recompute()

subtractivepipe = body2.newObject("PartDesign::SubtractivePipe", "SubtractivePipe")
subtractivepipe.Profile = sketch12
subtractivepipe.Spine = (sketch13, ["Edge1", "Edge2", "Edge3", "Edge4", "Edge5", "Edge6", "Edge7"])

sketch14 = body2.newObject("Sketcher::SketchObject", "Sketch013")
sketch14.AttachmentSupport = (doc.getObject("XY_Plane001"), [""])
sketch14.MapMode = "FlatFace"
sketch14.AttachmentOffset = App.Placement(Vector(0, 0, -0.5), App.Rotation())
sketch14.addGeometry(Part.ArcOfCircle(Part.Circle(Vector(17.8, 44.3, 0), Vector(0, 0, 1), 12), math.radians(149), math.radians(254)), False)
sketch14.addGeometry(Part.LineSegment(Vector(7.5, 50.5, 0), Vector(8, 50.5, 0)), False)
sketch14.addGeometry(Part.LineSegment(Vector(8, 50.5, 0), Vector(8, 63.5, 0)), False)
sketch14.addGeometry(Part.LineSegment(Vector(8, 63.5, 0), Vector(-8, 63.5, 0)), False)
sketch14.addGeometry(Part.LineSegment(Vector(-8, 63.5, 0), Vector(-8, 50.5, 0)), False)
sketch14.addGeometry(Part.LineSegment(Vector(-8, 50.5, 0), Vector(-7.5, 50.5, 0)), False)
sketch14.addGeometry(Part.ArcOfCircle(Part.Circle(Vector(-17.8, 44.3, 0), Vector(0, 0, 1), 12), math.radians(-74), math.radians(31)), False)
sketch14.addGeometry(Part.LineSegment(Vector(-14.4, 32.8, 0), Vector(14.4, 32.8, 0)), False)
sketch14.addConstraint(Sketcher.Constraint("Coincident", 0, 1, 1, 1))
sketch14.addConstraint(Sketcher.Constraint("Coincident", 1, 2, 2, 1))
sketch14.addConstraint(Sketcher.Constraint("Coincident", 2, 2, 3, 1))
sketch14.addConstraint(Sketcher.Constraint("Coincident", 3, 2, 4, 1))
sketch14.addConstraint(Sketcher.Constraint("Coincident", 4, 2, 5, 1))
sketch14.addConstraint(Sketcher.Constraint("Coincident", 5, 2, 6, 2))
sketch14.addConstraint(Sketcher.Constraint("Coincident", 6, 1, 7, 1))
sketch14.addConstraint(Sketcher.Constraint("Coincident", 7, 2, 0, 2))
sketch14.addConstraint(Sketcher.Constraint("Horizontal", 1))
sketch14.addConstraint(Sketcher.Constraint("Vertical", 2))
sketch14.addConstraint(Sketcher.Constraint("Horizontal", 3))
sketch14.addConstraint(Sketcher.Constraint("Vertical", 4))
sketch14.addConstraint(Sketcher.Constraint("Horizontal", 5))
sketch14.addConstraint(Sketcher.Constraint("Horizontal", 7))
sketch14.addConstraint(Sketcher.Constraint("Equal", 0, 6))
sketch14.addConstraint(Sketcher.Constraint("Symmetric", 0, 3, 6, 3, -2))
sketch14.addConstraint(Sketcher.Constraint("Symmetric", 1, 2, 4, 2, -2))
sketch14.addConstraint(Sketcher.Constraint("Radius", 0, 12.0))
sketch14.addConstraint(Sketcher.Constraint("DistanceX", 3, 2, 3, 1, 16.0))
sketch14.addConstraint(Sketcher.Constraint("DistanceY", 2, 1, 2, 2, 13.0))
sketch14.addConstraint(Sketcher.Constraint("DistanceY", -1, 1, 0, 1, 50.5))
sketch14.addConstraint(Sketcher.Constraint("DistanceX", 1, 1, 1, 2, 0.50299))
sketch14.addConstraint(Sketcher.Constraint("DistanceX", 7, 1, 7, 2, 28.89057))
sketch14.addConstraint(Sketcher.Constraint("DistanceX", -1, 1, 0, 3, 17.78492))
pocket7 = body2.newObject("PartDesign::Pocket", "Pocket006")
pocket7.Profile = sketch14
pocket7.Type = "ThroughAll"
pocket7.Reversed = True

sketch15 = body2.newObject("Sketcher::SketchObject", "Sketch014")
sketch15.AttachmentSupport = (doc.getObject("XY_Plane001"), [""])
sketch15.MapMode = "FlatFace"
sketch15.addGeometry(Part.Circle(Vector(0, 70, 0), Vector(0, 0, 1), 2.5), False)
sketch15.addGeometry(Part.Circle(Vector(-19, 20, 0), Vector(0, 0, 1), 2.5), False)
sketch15.addGeometry(Part.Circle(Vector(19, 20, 0), Vector(0, 0, 1), 2.5), False)
sketch15.addConstraint(Sketcher.Constraint("Equal", 0, 1))
sketch15.addConstraint(Sketcher.Constraint("Equal", 1, 2))
sketch15.addConstraint(Sketcher.Constraint("Symmetric", 1, 3, 2, 3, -2))
sketch15.addConstraint(Sketcher.Constraint("PointOnObject", 0, 3, -2))
sketch15.addConstraint(Sketcher.Constraint("Diameter", 0, 5.0))
sketch15.addConstraint(Sketcher.Constraint("DistanceY", -1, 1, 0, 3, 70.0))
sketch15.addConstraint(Sketcher.Constraint("DistanceX", 1, 3, -1, 1, 19.0))
sketch15.addConstraint(Sketcher.Constraint("DistanceY", -1, 1, 1, 3, 20.0))
pad4 = body2.newObject("PartDesign::Pad", "Pad003")
pad4.Profile = sketch15
pad4.Length = 5
doc.recompute()

boolean = body2.newObject("PartDesign::Boolean", "Boolean")
boolean.Type = "Common"
boolean.addObjects([body])

doc.recompute()
